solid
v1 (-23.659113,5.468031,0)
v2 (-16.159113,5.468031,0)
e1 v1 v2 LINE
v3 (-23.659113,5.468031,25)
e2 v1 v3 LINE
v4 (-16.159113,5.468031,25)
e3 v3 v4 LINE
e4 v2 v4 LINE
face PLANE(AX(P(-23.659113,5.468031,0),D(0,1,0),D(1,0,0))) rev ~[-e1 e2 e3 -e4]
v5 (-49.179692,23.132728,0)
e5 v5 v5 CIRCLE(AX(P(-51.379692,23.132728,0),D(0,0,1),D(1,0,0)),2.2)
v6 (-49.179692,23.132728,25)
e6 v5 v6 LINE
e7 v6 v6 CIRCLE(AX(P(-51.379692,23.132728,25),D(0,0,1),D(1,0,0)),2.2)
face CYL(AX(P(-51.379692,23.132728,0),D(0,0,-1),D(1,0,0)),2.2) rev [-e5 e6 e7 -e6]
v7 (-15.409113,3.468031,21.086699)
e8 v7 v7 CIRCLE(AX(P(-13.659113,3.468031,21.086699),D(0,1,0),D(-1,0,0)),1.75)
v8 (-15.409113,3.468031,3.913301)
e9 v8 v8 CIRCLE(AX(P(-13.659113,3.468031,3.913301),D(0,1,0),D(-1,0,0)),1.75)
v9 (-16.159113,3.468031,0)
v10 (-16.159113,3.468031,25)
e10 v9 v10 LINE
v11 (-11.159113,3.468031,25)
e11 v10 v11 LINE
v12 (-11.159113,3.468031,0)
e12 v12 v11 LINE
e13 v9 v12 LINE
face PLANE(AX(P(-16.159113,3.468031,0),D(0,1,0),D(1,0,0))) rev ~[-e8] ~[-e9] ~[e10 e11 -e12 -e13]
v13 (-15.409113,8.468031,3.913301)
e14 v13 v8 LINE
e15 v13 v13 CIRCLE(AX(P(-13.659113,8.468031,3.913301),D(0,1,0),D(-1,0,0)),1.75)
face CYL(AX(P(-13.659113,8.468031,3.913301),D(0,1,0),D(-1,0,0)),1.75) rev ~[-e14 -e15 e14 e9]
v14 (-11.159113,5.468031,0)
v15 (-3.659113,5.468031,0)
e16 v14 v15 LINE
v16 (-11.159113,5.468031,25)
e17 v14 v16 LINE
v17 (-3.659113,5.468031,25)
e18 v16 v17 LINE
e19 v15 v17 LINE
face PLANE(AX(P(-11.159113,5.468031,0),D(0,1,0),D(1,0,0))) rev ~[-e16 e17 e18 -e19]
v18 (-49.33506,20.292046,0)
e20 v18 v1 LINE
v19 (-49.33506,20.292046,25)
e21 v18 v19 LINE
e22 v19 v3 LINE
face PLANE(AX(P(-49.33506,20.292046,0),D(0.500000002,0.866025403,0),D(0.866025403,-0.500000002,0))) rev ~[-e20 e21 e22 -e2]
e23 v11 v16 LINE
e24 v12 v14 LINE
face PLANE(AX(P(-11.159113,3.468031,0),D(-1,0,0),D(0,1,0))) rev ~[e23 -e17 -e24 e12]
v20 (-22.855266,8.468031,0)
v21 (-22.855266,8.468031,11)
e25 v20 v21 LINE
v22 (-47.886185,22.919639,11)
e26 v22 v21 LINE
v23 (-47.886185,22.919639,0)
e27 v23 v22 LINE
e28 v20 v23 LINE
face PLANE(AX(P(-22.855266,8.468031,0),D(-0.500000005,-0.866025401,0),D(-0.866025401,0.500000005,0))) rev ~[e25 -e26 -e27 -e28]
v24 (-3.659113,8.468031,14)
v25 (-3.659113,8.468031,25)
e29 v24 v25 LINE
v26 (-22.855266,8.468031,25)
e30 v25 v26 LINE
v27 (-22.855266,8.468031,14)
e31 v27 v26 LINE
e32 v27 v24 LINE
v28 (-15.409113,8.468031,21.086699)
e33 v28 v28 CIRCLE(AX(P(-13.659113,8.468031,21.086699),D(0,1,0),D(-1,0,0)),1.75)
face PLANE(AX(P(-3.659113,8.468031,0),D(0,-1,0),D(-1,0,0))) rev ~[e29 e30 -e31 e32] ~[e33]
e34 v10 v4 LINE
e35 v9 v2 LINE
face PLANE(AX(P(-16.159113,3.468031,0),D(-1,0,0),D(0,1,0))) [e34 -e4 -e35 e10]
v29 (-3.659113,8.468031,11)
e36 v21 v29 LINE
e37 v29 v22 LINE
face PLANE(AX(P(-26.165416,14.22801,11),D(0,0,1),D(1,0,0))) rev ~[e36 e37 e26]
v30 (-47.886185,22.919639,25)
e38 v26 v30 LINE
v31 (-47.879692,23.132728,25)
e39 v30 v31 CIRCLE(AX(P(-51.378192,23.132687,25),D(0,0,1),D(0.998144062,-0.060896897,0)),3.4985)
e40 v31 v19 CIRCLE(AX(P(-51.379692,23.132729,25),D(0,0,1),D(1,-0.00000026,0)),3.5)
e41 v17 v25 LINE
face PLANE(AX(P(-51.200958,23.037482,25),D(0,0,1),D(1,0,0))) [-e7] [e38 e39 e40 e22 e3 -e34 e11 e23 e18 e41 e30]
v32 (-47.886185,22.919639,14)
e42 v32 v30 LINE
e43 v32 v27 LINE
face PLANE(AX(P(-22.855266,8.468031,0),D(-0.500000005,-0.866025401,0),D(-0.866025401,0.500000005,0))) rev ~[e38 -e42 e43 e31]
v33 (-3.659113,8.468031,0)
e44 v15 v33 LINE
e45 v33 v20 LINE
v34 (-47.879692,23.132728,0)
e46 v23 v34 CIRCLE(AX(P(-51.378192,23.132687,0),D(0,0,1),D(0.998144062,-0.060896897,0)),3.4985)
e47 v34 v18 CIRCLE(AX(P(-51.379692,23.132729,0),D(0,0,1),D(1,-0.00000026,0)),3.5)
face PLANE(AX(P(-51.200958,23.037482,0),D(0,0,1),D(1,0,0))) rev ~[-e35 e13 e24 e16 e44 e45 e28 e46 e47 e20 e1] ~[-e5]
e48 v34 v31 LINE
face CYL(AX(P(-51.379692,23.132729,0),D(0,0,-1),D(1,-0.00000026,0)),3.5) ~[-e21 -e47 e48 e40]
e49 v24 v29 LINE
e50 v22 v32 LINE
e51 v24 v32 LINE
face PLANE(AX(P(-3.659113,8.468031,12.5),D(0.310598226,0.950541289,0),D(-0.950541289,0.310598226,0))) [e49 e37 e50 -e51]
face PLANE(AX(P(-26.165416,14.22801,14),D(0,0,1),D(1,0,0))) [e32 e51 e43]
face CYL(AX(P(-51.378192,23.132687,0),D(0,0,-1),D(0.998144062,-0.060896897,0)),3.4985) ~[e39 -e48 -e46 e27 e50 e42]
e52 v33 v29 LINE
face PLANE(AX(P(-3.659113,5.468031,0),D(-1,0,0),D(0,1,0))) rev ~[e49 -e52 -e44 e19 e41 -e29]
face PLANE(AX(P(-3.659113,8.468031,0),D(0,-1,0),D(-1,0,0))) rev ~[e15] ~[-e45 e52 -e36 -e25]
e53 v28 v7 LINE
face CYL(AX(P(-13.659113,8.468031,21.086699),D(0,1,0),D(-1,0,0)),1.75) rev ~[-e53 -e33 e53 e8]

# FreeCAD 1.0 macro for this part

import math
import FreeCAD as App
import Part
import Sketcher
from FreeCAD import Vector
Q = App.Units.Quantity


def add_polygon(sketch, points):
    """Adds a closed chain of lines whose ends are joined by coincident constraints."""
    first, n = sketch.GeometryCount, len(points)
    for a, b in zip(points, points[1:] + points[:1]):
        sketch.addGeometry(Part.LineSegment(App.Vector(*a, 0), App.Vector(*b, 0)), False)
    for i in range(n):
        sketch.addConstraint(Sketcher.Constraint("Coincident", first + i, 2, first + (i + 1) % n, 1))

doc = App.newDocument("Part")
body = doc.addObject("PartDesign::Body", "Body")

sketch1 = body.newObject("Sketcher::SketchObject", "Sketch")
sketch1.AttachmentSupport = (doc.getObject("XY_Plane"), [""])
sketch1.MapMode = "FlatFace"
sketch1.addGeometry([
    Part.ArcOfCircle(Part.Circle(Vector(-51.38, 23.13, 0), Vector(0, 0, 1), 3.5), math.radians(-3.49), math.radians(0)),
    Part.ArcOfCircle(Part.Circle(Vector(-51.38, 23.13, 0), Vector(0, 0, 1), 3.5), math.radians(0), math.radians(306)),
    Part.LineSegment(Vector(-49.34, 20.29, 0), Vector(-23.66, 5.47, 0)),
    Part.LineSegment(Vector(-23.66, 5.47, 0), Vector(-16.16, 5.47, 0)),
    Part.LineSegment(Vector(-16.16, 5.47, 0), Vector(-16.16, 3.47, 0)),
    Part.LineSegment(Vector(-16.16, 3.47, 0), Vector(-11.16, 3.47, 0)),
    Part.LineSegment(Vector(-11.16, 3.47, 0), Vector(-11.16, 5.47, 0)),
    Part.LineSegment(Vector(-11.16, 5.47, 0), Vector(-3.66, 5.47, 0)),
    Part.LineSegment(Vector(-3.66, 5.47, 0), Vector(-3.66, 8.47, 0)),
    Part.LineSegment(Vector(-3.66, 8.47, 0), Vector(-22.86, 8.47, 0)),
    Part.LineSegment(Vector(-22.86, 8.47, 0), Vector(-47.89, 22.92, 0)),
    Part.Circle(Vector(-51.38, 23.13, 0), Vector(0, 0, 1), 2.2),
], False)
sketch1.addConstraint([
    Sketcher.Constraint("Coincident", 0, 2, 1, 1),
    Sketcher.Constraint("Coincident", 1, 2, 2, 1),
    Sketcher.Constraint("Coincident", 2, 2, 3, 1),
    Sketcher.Constraint("Coincident", 3, 2, 4, 1),
    Sketcher.Constraint("Coincident", 4, 2, 5, 1),
    Sketcher.Constraint("Coincident", 5, 2, 6, 1),
    Sketcher.Constraint("Coincident", 6, 2, 7, 1),
    Sketcher.Constraint("Coincident", 7, 2, 8, 1),
    Sketcher.Constraint("Coincident", 8, 2, 9, 1),
    Sketcher.Constraint("Coincident", 9, 2, 10, 1),
    Sketcher.Constraint("Coincident", 10, 2, 0, 1),
    Sketcher.Constraint("Horizontal", 3),
    Sketcher.Constraint("Vertical", 4),
    Sketcher.Constraint("Horizontal", 5),
    Sketcher.Constraint("Vertical", 6),
    Sketcher.Constraint("Horizontal", 7),
    Sketcher.Constraint("Vertical", 8),
    Sketcher.Constraint("Horizontal", 9),
    Sketcher.Constraint("Coincident", 11, 3, 1, 3),
    Sketcher.Constraint("Parallel", 2, 10),
    Sketcher.Constraint("Horizontal", 11, 3, 0, 2),
    Sketcher.Constraint("Horizontal", 3, 2, 6, 2),
    Sketcher.Constraint("Equal", 3, 7),
    Sketcher.Constraint("Diameter", 11, Q("4.4 mm")),
    Sketcher.Constraint("Radius", 1, Q("3.5 mm")),
    Sketcher.Constraint("DistanceX", 5, 1, 5, 2, Q("5 mm")),
    Sketcher.Constraint("DistanceY", 4, 2, 4, 1, Q("2 mm")),
    Sketcher.Constraint("DistanceY", 8, 1, 8, 2, Q("3 mm")),
    Sketcher.Constraint("Angle", 2, Q("-30 deg")),
    Sketcher.Constraint("DistanceX", 3, 1, 3, 2, Q("7.5 mm")),
    Sketcher.Constraint("Radius", 0, Q("3.4985 mm")),
    Sketcher.Constraint("Distance", 2, Q("29.64803 mm")),
    Sketcher.Constraint("DistanceX", 9, 2, 9, 1, Q("19.196153 mm")),
    Sketcher.Constraint("DistanceX", 1, 3, -1, 1, Q("51.379692 mm")),
    Sketcher.Constraint("DistanceY", -1, 1, 1, 3, Q("23.132729 mm")),
    Sketcher.Constraint("DistanceX", 1, 2, -1, 1, Q("49.33506 mm")),
    Sketcher.Constraint("DistanceY", -1, 1, 10, 2, Q("22.919639 mm")),
])
pad1 = body.newObject("PartDesign::Pad", "Pad")
pad1.Profile = sketch1
pad1.Length = 25

sketch2 = body.newObject("Sketcher::SketchObject", "Sketch001")
sketch2.AttachmentSupport = (doc.getObject("XY_Plane"), [""])
sketch2.MapMode = "FlatFace"
sketch2.AttachmentOffset = App.Placement(Vector(0, 0, 12.5), App.Rotation())
add_polygon(sketch2, [(-4, 8), (-48, 23), (-23, 8)])
sketch2.addConstraint([
    Sketcher.Constraint("Horizontal", 2),
    Sketcher.Constraint("Angle", 1, Q("-30 deg")),
    Sketcher.Constraint("Distance", 0, Q("46.528302 mm")),
    Sketcher.Constraint("DistanceX", 2, 1, 2, 2, Q("19.196153 mm")),
    Sketcher.Constraint("DistanceY", -1, 1, 0, 2, Q("22.919639 mm")),
    Sketcher.Constraint("DistanceX", 0, 2, -1, 1, Q("47.886185 mm")),
])
pad2 = body.newObject("PartDesign::Pad", "Pad001")
pad2.Profile = sketch2
pad2.Type = "TwoLengths"
pad2.Length = 1.5
pad2.Length2 = 1.5

sketch3 = body.newObject("Sketcher::SketchObject", "Sketch002")
sketch3.AttachmentSupport = (doc.getObject("XZ_Plane"), [""])
sketch3.MapMode = "FlatFace"
sketch3.AttachmentOffset = App.Placement(Vector(0, 0, -8.468031), App.Rotation())
sketch3.addGeometry([
    Part.Circle(Vector(-13.7, 3.9, 0), Vector(0, 0, 1), 1.8),
    Part.Circle(Vector(-13.7, 21.1, 0), Vector(0, 0, 1), 1.8),
], False)
sketch3.addConstraint([
    Sketcher.Constraint("Equal", 0, 1),
    Sketcher.Constraint("Vertical", 0, 3, 1, 3),
    Sketcher.Constraint("Diameter", 0, Q("3.5 mm")),
    Sketcher.Constraint("DistanceY", -1, 1, 0, 3, Q("3.913301 mm")),
    Sketcher.Constraint("DistanceY", -1, 1, 1, 3, Q("21.086699 mm")),
    Sketcher.Constraint("DistanceX", 0, 3, -1, 1, Q("13.659113 mm")),
])
pocket1 = body.newObject("PartDesign::Pocket", "Pocket")
pocket1.Profile = sketch3
pocket1.Length = 25
pocket1.Reversed = True

doc.recompute()
